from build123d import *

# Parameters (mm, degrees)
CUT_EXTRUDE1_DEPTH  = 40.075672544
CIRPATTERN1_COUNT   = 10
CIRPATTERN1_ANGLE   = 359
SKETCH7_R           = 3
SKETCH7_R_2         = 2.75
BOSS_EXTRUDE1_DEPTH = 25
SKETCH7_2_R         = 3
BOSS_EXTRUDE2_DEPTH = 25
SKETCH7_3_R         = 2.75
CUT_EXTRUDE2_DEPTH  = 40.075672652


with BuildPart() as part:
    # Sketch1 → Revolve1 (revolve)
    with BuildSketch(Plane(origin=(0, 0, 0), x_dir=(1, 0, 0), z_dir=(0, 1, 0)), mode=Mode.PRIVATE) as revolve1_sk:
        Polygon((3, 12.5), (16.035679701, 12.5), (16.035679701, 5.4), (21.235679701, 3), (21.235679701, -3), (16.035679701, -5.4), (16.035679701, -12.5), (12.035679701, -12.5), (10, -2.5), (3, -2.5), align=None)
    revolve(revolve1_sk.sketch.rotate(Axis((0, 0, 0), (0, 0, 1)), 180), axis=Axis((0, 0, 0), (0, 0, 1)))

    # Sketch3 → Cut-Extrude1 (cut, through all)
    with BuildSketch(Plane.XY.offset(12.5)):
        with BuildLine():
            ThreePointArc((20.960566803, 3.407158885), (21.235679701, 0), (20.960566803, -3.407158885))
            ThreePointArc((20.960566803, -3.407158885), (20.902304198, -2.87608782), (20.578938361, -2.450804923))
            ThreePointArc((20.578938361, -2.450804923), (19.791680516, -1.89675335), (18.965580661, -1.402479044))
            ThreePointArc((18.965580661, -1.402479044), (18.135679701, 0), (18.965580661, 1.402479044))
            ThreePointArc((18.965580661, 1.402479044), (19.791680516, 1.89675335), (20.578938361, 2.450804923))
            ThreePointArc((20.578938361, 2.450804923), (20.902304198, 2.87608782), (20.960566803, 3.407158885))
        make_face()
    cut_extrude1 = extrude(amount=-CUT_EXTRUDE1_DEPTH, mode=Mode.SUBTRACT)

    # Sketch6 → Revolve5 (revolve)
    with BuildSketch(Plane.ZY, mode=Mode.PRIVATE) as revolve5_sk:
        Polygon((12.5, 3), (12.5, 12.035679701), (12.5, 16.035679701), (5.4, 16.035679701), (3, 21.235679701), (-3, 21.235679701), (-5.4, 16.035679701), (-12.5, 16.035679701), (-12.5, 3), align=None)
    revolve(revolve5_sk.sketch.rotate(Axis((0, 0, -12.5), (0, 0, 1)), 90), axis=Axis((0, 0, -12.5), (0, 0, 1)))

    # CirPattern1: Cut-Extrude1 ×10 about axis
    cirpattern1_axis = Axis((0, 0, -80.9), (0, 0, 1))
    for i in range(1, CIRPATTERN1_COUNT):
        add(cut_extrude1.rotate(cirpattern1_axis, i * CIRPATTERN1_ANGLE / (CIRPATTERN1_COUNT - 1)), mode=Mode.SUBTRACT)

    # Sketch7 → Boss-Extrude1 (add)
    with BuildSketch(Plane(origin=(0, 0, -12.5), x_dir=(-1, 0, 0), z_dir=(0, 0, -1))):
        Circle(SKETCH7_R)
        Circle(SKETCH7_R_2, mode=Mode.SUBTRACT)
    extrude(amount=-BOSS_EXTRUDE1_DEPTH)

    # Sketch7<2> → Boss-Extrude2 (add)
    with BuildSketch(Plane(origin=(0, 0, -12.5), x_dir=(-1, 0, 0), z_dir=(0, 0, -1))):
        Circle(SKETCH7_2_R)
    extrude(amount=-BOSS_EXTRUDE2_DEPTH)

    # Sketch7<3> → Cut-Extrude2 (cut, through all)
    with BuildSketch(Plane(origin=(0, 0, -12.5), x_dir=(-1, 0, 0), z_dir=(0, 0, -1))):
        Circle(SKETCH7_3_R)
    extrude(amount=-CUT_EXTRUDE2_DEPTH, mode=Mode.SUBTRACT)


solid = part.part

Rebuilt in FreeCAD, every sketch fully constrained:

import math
import FreeCAD as App
import Part
import Sketcher
from FreeCAD import Vector
Q = App.Units.Quantity

doc = App.newDocument("Part")
params = doc.addObject("Spreadsheet::Sheet", "Params")
for row, (alias, value) in enumerate([
    ("sketch1_width", "7 mm"),
    ("sketch1_width2", "4 mm"),
    ("sketch1_height", "15 mm"),
    ("sketch1_height2", "6 mm"),
    ("sketch1_height3", "7.1 mm"),
    ("revolution_angle", "360 deg"),
    ("sketch2_radius", "1 mm"),
    ("sketch2_radius2", "13 mm"),
    ("sketch2_radius3", "1.6 mm"),
    ("sketch3_height", "6 mm"),
    ("sketch3_height2", "25 mm"),
    ("sketch3_height3", "7.1 mm"),
    ("revolution2_angle", "360 deg"),
    ("sketch4_diameter", "6 mm"),
    ("sketch4_diameter2", "5.5 mm"),
    ("pad1_length", "25 mm"),
    ("sketch5_diameter", "6 mm"),
    ("pad2_length", "25 mm"),
    ("sketch6_diameter", "5.5 mm"),
], start=1):
    params.set(f"A{row}", alias)
    params.set(f"B{row}", "=" + value)
    params.setAlias(f"B{row}", alias)

body = doc.addObject("PartDesign::Body", "Body")

# Sketch on XZ plane
sketch1 = body.newObject("Sketcher::SketchObject", "Sketch")
sketch1.AttachmentSupport = (doc.getObject("XZ_Plane"), [""])
sketch1.MapMode = "FlatFace"
sketch1.addGeometry(Part.LineSegment(Vector(16, -12.5, 0), Vector(3, -12.5, 0)), False)
sketch1.addGeometry(Part.LineSegment(Vector(3, -12.5, 0), Vector(3, 2.5, 0)), False)
sketch1.addGeometry(Part.LineSegment(Vector(3, 2.5, 0), Vector(10, 2.5, 0)), False)
sketch1.addGeometry(Part.LineSegment(Vector(10, 2.5, 0), Vector(12, 12.5, 0)), False)
sketch1.addGeometry(Part.LineSegment(Vector(12, 12.5, 0), Vector(16, 12.5, 0)), False)
sketch1.addGeometry(Part.LineSegment(Vector(16, 12.5, 0), Vector(16, 5.4, 0)), False)
sketch1.addGeometry(Part.LineSegment(Vector(16, 5.4, 0), Vector(21.2, 3, 0)), False)
sketch1.addGeometry(Part.LineSegment(Vector(21.2, 3, 0), Vector(21.2, -3, 0)), False)
sketch1.addGeometry(Part.LineSegment(Vector(21.2, -3, 0), Vector(16, -5.4, 0)), False)
sketch1.addGeometry(Part.LineSegment(Vector(16, -5.4, 0), Vector(16, -12.5, 0)), False)
sketch1.addConstraint(Sketcher.Constraint("Coincident", 0, 2, 1, 1))
sketch1.addConstraint(Sketcher.Constraint("Coincident", 1, 2, 2, 1))
sketch1.addConstraint(Sketcher.Constraint("Coincident", 2, 2, 3, 1))
sketch1.addConstraint(Sketcher.Constraint("Coincident", 3, 2, 4, 1))
sketch1.addConstraint(Sketcher.Constraint("Coincident", 4, 2, 5, 1))
sketch1.addConstraint(Sketcher.Constraint("Coincident", 5, 2, 6, 1))
sketch1.addConstraint(Sketcher.Constraint("Coincident", 6, 2, 7, 1))
sketch1.addConstraint(Sketcher.Constraint("Coincident", 7, 2, 8, 1))
sketch1.addConstraint(Sketcher.Constraint("Coincident", 8, 2, 9, 1))
sketch1.addConstraint(Sketcher.Constraint("Coincident", 9, 2, 0, 1))
sketch1.addConstraint(Sketcher.Constraint("Horizontal", 0))
sketch1.addConstraint(Sketcher.Constraint("Vertical", 1))
sketch1.addConstraint(Sketcher.Constraint("Horizontal", 2))
sketch1.addConstraint(Sketcher.Constraint("Horizontal", 4))
sketch1.addConstraint(Sketcher.Constraint("Vertical", 5))
sketch1.addConstraint(Sketcher.Constraint("Vertical", 7))
sketch1.addConstraint(Sketcher.Constraint("Vertical", 9))
sketch1.addConstraint(Sketcher.Constraint("Symmetric", 5, 2, 8, 2, -1))
sketch1.addConstraint(Sketcher.Constraint("Equal", 5, 9))
sketch1.addConstraint(Sketcher.Constraint("Equal", 6, 8))
sketch1.addConstraint(Sketcher.Constraint("DistanceX", 2, 1, 2, 2, Q("7 mm")))
sketch1.addConstraint(Sketcher.Constraint("DistanceX", 4, 1, 4, 2, Q("4 mm")))
sketch1.addConstraint(Sketcher.Constraint("DistanceY", 1, 1, 1, 2, Q("15 mm")))
sketch1.addConstraint(Sketcher.Constraint("DistanceY", 7, 2, 7, 1, Q("6 mm")))
sketch1.addConstraint(Sketcher.Constraint("DistanceY", 5, 2, 5, 1, Q("7.1 mm")))
sketch1.addConstraint(Sketcher.Constraint("DistanceX", -1, 1, 0, 2, Q("3 mm")))
sketch1.addConstraint(Sketcher.Constraint("DistanceY", 2, 2, 3, 2, Q("10 mm")))
sketch1.addConstraint(Sketcher.Constraint("DistanceX", 5, 2, 6, 2, Q("5.2 mm")))
sketch1.addConstraint(Sketcher.Constraint("DistanceX", 0, 2, 0, 1, Q("13.03568 mm")))
sketch1.setExpression("Constraints[20]", "Params.sketch1_width")
sketch1.setExpression("Constraints[21]", "Params.sketch1_width2")
sketch1.setExpression("Constraints[22]", "Params.sketch1_height")
sketch1.setExpression("Constraints[23]", "Params.sketch1_height2")
sketch1.setExpression("Constraints[24]", "Params.sketch1_height3")
revolution = body.newObject("PartDesign::Revolution", "Revolution")
revolution.Profile = sketch1
revolution.ReferenceAxis = (sketch1, ["V_Axis"])
revolution.setExpression("Angle", "Params.revolution_angle")

# Sketch on XY plane
sketch2 = body.newObject("Sketcher::SketchObject", "Sketch001")
sketch2.AttachmentSupport = (doc.getObject("XY_Plane"), [""])
sketch2.MapMode = "FlatFace"
sketch2.AttachmentOffset = App.Placement(Vector(0, 0, 12.5), App.Rotation())
sketch2.addGeometry(Part.ArcOfCircle(Part.Circle(Vector(0, 0, 0), Vector(0, 0, 1), 21.2), math.radians(-9.23), math.radians(9.23)), False)
sketch2.addGeometry(Part.ArcOfCircle(Part.Circle(Vector(20, 3.2, 0), Vector(0, 0, 1), 1), math.radians(-53), math.radians(9)), False)
sketch2.addGeometry(Part.ArcOfCircle(Part.Circle(Vector(12.7, 12.8, 0), Vector(0, 0, 1), 13), math.radians(-61.23), math.radians(-52.74)), False)
sketch2.addGeometry(Part.ArcOfCircle(Part.Circle(Vector(19.7, 0, 0), Vector(0, 0, 1), 1.6), math.radians(119), math.radians(241)), False)
sketch2.addGeometry(Part.ArcOfCircle(Part.Circle(Vector(12.7, -12.8, 0), Vector(0, 0, 1), 13), math.radians(52.74), math.radians(61.23)), False)
sketch2.addGeometry(Part.ArcOfCircle(Part.Circle(Vector(20, -3.2, 0), Vector(0, 0, 1), 1), math.radians(-9), math.radians(53)), False)
sketch2.addConstraint(Sketcher.Constraint("Tangent", 0, 2, 1, 2))
sketch2.addConstraint(Sketcher.Constraint("Tangent", 1, 1, 2, 2))
sketch2.addConstraint(Sketcher.Constraint("Tangent", 2, 1, 3, 1))
sketch2.addConstraint(Sketcher.Constraint("Tangent", 3, 2, 4, 2))
sketch2.addConstraint(Sketcher.Constraint("Tangent", 4, 1, 5, 2))
sketch2.addConstraint(Sketcher.Constraint("Tangent", 5, 1, 0, 1))
sketch2.addConstraint(Sketcher.Constraint("Coincident", 0, 3, -1, 1))
sketch2.addConstraint(Sketcher.Constraint("Equal", 2, 4))
sketch2.addConstraint(Sketcher.Constraint("Equal", 1, 5))
sketch2.addConstraint(Sketcher.Constraint("Symmetric", 2, 3, 4, 3, -1))
sketch2.addConstraint(Sketcher.Constraint("Radius", 1, Q("1 mm")))
sketch2.addConstraint(Sketcher.Constraint("Radius", 2, Q("13 mm")))
sketch2.addConstraint(Sketcher.Constraint("Radius", 3, Q("1.6 mm")))
sketch2.addConstraint(Sketcher.Constraint("Radius", 0, Q("21.23568 mm")))
sketch2.addConstraint(Sketcher.Constraint("DistanceX", 2, 1, 3, 3, Q("0.770099 mm")))
sketch2.addConstraint(Sketcher.Constraint("DistanceX", -1, 1, 3, 3, Q("19.73568 mm")))
sketch2.setExpression("Constraints[10]", "Params.sketch2_radius")
sketch2.setExpression("Constraints[11]", "Params.sketch2_radius2")
sketch2.setExpression("Constraints[12]", "Params.sketch2_radius3")
pocket1 = body.newObject("PartDesign::Pocket", "Pocket")
pocket1.Profile = sketch2
pocket1.Type = "ThroughAll"

# Sketch on YZ plane
sketch3 = body.newObject("Sketcher::SketchObject", "Sketch002")
sketch3.AttachmentSupport = (doc.getObject("YZ_Plane"), [""])
sketch3.MapMode = "FlatFace"
sketch3.addGeometry(Part.LineSegment(Vector(3, 12, 0), Vector(16, 12, 0)), False)
sketch3.addGeometry(Part.LineSegment(Vector(16, 12, 0), Vector(16, 5, 0)), False)
sketch3.addGeometry(Part.LineSegment(Vector(16, 5, 0), Vector(21, 3, 0)), False)
sketch3.addGeometry(Part.LineSegment(Vector(21, 3, 0), Vector(21, -3, 0)), False)
sketch3.addGeometry(Part.LineSegment(Vector(21, -3, 0), Vector(16, -5, 0)), False)
sketch3.addGeometry(Part.LineSegment(Vector(16, -5, 0), Vector(16, -12, 0)), False)
sketch3.addGeometry(Part.LineSegment(Vector(16, -12, 0), Vector(3, -12, 0)), False)
sketch3.addGeometry(Part.LineSegment(Vector(3, -12, 0), Vector(3, 12, 0)), False)
sketch3.addConstraint(Sketcher.Constraint("Coincident", 0, 2, 1, 1))
sketch3.addConstraint(Sketcher.Constraint("Coincident", 1, 2, 2, 1))
sketch3.addConstraint(Sketcher.Constraint("Coincident", 2, 2, 3, 1))
sketch3.addConstraint(Sketcher.Constraint("Coincident", 3, 2, 4, 1))
sketch3.addConstraint(Sketcher.Constraint("Coincident", 4, 2, 5, 1))
sketch3.addConstraint(Sketcher.Constraint("Coincident", 5, 2, 6, 1))
sketch3.addConstraint(Sketcher.Constraint("Coincident", 6, 2, 7, 1))
sketch3.addConstraint(Sketcher.Constraint("Coincident", 7, 2, 0, 1))
sketch3.addConstraint(Sketcher.Constraint("Horizontal", 0))
sketch3.addConstraint(Sketcher.Constraint("Vertical", 1))
sketch3.addConstraint(Sketcher.Constraint("Vertical", 3))
sketch3.addConstraint(Sketcher.Constraint("Vertical", 5))
sketch3.addConstraint(Sketcher.Constraint("Horizontal", 6))
sketch3.addConstraint(Sketcher.Constraint("Vertical", 7))
sketch3.addConstraint(Sketcher.Constraint("Symmetric", 1, 2, 4, 2, -1))
sketch3.addConstraint(Sketcher.Constraint("Equal", 1, 5))
sketch3.addConstraint(Sketcher.Constraint("Equal", 2, 4))
sketch3.addConstraint(Sketcher.Constraint("DistanceY", 3, 2, 3, 1, Q("6 mm")))
sketch3.addConstraint(Sketcher.Constraint("DistanceY", 7, 1, 7, 2, Q("25 mm")))
sketch3.addConstraint(Sketcher.Constraint("DistanceY", 1, 2, 1, 1, Q("7.1 mm")))
sketch3.addConstraint(Sketcher.Constraint("DistanceX", -1, 1, 6, 2, Q("3 mm")))
sketch3.addConstraint(Sketcher.Constraint("DistanceX", 1, 2, 2, 2, Q("5.2 mm")))
sketch3.addConstraint(Sketcher.Constraint("DistanceX", 0, 1, 0, 2, Q("13.03568 mm")))
sketch3.setExpression("Constraints[17]", "Params.sketch3_height")
sketch3.setExpression("Constraints[18]", "Params.sketch3_height2")
sketch3.setExpression("Constraints[19]", "Params.sketch3_height3")
revolution2 = body.newObject("PartDesign::Revolution", "Revolution001")
revolution2.Profile = sketch3
revolution2.ReferenceAxis = (sketch3, ["V_Axis"])
revolution2.setExpression("Angle", "Params.revolution2_angle")
doc.recompute()

polarpattern = body.newObject("PartDesign::PolarPattern", "PolarPattern")
polarpattern.Originals = [pocket1]
polarpattern.Axis = (doc.getObject("Z_Axis"), [""])
polarpattern.Angle = 359
polarpattern.Occurrences = 10
body.Tip = polarpattern

# Sketch on XY plane
sketch4 = body.newObject("Sketcher::SketchObject", "Sketch003")
sketch4.AttachmentSupport = (doc.getObject("XY_Plane"), [""])
sketch4.MapMode = "FlatFace"
sketch4.AttachmentOffset = App.Placement(Vector(0, 0, -12.5), App.Rotation())
sketch4.addGeometry(Part.Circle(Vector(0, 0, 0), Vector(0, 0, 1), 3), False)
sketch4.addGeometry(Part.Circle(Vector(0, 0, 0), Vector(0, 0, 1), 2.8), False)
sketch4.addConstraint(Sketcher.Constraint("Coincident", 0, 3, -1, 1))
sketch4.addConstraint(Sketcher.Constraint("Coincident", 1, 3, -1, 1))
sketch4.addConstraint(Sketcher.Constraint("Diameter", 0, Q("6 mm")))
sketch4.addConstraint(Sketcher.Constraint("Diameter", 1, Q("5.5 mm")))
sketch4.setExpression("Constraints[2]", "Params.sketch4_diameter")
sketch4.setExpression("Constraints[3]", "Params.sketch4_diameter2")
pad1 = body.newObject("PartDesign::Pad", "Pad")
pad1.Profile = sketch4
pad1.setExpression("Length", "Params.pad1_length")

# Sketch on XY plane
sketch5 = body.newObject("Sketcher::SketchObject", "Sketch004")
sketch5.AttachmentSupport = (doc.getObject("XY_Plane"), [""])
sketch5.MapMode = "FlatFace"
sketch5.AttachmentOffset = App.Placement(Vector(0, 0, -12.5), App.Rotation())
sketch5.addGeometry(Part.Circle(Vector(0, 0, 0), Vector(0, 0, 1), 3), False)
sketch5.addConstraint(Sketcher.Constraint("Coincident", 0, 3, -1, 1))
sketch5.addConstraint(Sketcher.Constraint("Diameter", 0, Q("6 mm")))
sketch5.setExpression("Constraints[1]", "Params.sketch5_diameter")
pad2 = body.newObject("PartDesign::Pad", "Pad001")
pad2.Profile = sketch5
pad2.setExpression("Length", "Params.pad2_length")

# Sketch on XY plane
sketch6 = body.newObject("Sketcher::SketchObject", "Sketch005")
sketch6.AttachmentSupport = (doc.getObject("XY_Plane"), [""])
sketch6.MapMode = "FlatFace"
sketch6.AttachmentOffset = App.Placement(Vector(0, 0, -12.5), App.Rotation())
sketch6.addGeometry(Part.Circle(Vector(0, 0, 0), Vector(0, 0, 1), 2.8), False)
sketch6.addConstraint(Sketcher.Constraint("Coincident", 0, 3, -1, 1))
sketch6.addConstraint(Sketcher.Constraint("Diameter", 0, Q("5.5 mm")))
sketch6.setExpression("Constraints[1]", "Params.sketch6_diameter")
pocket2 = body.newObject("PartDesign::Pocket", "Pocket001")
pocket2.Profile = sketch6
pocket2.Type = "ThroughAll"
pocket2.Reversed = True

doc.recompute()
